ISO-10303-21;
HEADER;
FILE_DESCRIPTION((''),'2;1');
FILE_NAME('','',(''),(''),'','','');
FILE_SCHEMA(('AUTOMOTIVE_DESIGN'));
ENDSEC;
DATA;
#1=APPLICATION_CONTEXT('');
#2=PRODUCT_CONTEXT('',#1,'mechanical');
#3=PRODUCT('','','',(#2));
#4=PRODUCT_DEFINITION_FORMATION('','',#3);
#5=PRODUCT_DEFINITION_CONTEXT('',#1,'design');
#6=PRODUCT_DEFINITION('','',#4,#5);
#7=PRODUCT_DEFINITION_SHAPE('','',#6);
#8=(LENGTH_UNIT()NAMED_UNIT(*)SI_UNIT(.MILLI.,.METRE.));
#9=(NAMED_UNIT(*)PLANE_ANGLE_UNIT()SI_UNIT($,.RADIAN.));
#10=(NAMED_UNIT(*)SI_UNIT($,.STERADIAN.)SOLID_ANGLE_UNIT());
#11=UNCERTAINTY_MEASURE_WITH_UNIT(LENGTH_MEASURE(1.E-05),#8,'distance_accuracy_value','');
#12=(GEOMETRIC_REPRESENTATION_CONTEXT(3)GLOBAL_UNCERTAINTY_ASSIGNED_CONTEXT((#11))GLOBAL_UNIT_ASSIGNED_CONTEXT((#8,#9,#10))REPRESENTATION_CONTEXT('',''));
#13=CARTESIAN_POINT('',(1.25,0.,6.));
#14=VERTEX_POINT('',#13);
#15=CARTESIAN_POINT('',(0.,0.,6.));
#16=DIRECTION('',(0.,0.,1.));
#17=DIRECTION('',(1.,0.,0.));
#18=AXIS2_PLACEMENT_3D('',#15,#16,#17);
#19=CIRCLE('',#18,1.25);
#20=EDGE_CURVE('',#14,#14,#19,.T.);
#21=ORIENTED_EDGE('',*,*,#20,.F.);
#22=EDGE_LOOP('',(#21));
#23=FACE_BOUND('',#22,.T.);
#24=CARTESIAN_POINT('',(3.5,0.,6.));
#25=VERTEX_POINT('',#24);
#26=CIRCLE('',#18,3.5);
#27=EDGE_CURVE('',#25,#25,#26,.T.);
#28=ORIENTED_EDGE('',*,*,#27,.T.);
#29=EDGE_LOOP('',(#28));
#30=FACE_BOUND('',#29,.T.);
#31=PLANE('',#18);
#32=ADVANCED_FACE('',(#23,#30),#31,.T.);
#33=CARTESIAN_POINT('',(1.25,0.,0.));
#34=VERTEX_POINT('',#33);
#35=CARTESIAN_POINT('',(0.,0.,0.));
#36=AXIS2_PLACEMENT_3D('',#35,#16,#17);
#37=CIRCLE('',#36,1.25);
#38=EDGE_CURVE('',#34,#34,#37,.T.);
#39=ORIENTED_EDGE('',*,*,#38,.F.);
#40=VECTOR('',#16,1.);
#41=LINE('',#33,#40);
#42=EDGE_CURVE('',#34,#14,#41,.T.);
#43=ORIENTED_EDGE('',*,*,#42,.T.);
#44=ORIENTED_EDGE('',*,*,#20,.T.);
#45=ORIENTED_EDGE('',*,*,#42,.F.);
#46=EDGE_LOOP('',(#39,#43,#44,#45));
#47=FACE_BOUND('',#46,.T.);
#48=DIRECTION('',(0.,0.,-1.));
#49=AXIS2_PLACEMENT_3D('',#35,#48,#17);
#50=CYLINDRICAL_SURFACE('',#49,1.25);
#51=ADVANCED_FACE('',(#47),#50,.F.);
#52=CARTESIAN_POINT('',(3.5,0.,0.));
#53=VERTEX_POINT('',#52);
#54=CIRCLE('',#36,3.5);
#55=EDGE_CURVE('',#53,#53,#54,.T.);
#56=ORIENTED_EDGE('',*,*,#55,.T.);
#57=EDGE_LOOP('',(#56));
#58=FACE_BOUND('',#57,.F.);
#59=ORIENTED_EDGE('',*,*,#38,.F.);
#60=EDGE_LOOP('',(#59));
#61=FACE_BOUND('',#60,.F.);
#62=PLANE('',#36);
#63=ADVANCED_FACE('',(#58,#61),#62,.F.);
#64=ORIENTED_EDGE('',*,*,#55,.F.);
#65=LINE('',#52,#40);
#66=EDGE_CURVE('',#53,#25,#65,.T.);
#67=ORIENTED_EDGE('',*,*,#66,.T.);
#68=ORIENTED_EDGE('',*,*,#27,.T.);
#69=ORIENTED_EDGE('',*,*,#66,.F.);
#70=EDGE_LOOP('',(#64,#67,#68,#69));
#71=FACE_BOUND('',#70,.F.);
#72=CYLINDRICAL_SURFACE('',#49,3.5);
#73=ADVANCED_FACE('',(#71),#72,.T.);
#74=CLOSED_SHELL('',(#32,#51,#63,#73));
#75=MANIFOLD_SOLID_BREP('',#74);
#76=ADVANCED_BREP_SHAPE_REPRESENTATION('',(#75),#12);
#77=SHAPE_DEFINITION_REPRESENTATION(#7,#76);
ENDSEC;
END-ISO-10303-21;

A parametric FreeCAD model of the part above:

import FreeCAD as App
import Part
import Sketcher

V = App.Vector

doc = App.newDocument("Part")
params = doc.addObject("Spreadsheet::Sheet", "Params")
for row, (alias, value) in enumerate([
    ("sketch1_diameter", "7 mm"),
    ("sketch1_diameter2", "2.5 mm"),
    ("pad1_length", "6 mm"),
], start=1):
    params.set(f"A{row}", alias)
    params.set(f"B{row}", "=" + value)
    params.setAlias(f"B{row}", alias)

body = doc.addObject("PartDesign::Body", "Body")

# Sketch on XY plane
sketch1 = body.newObject("Sketcher::SketchObject", "Sketch")
sketch1.AttachmentSupport = (doc.getObject("XY_Plane"), [""])
sketch1.MapMode = "FlatFace"
sketch1.addGeometry(Part.Circle(V(0, 0, 0), V(0, 0, 1), 3.5), False)
sketch1.addGeometry(Part.Circle(V(0, 0, 0), V(0, 0, 1), 1.2), False)
sketch1.addConstraint(Sketcher.Constraint("Coincident", 0, 3, -1, 1))
sketch1.addConstraint(Sketcher.Constraint("Coincident", 1, 3, -1, 1))
sketch1.addConstraint(Sketcher.Constraint("Diameter", 0, 7.0))
sketch1.addConstraint(Sketcher.Constraint("Diameter", 1, 2.5))
sketch1.setExpression("Constraints[2]", "Params.sketch1_diameter")
sketch1.setExpression("Constraints[3]", "Params.sketch1_diameter2")
pad1 = body.newObject("PartDesign::Pad", "Pad")
pad1.Profile = sketch1
pad1.setExpression("Length", "Params.pad1_length")

doc.recompute()
